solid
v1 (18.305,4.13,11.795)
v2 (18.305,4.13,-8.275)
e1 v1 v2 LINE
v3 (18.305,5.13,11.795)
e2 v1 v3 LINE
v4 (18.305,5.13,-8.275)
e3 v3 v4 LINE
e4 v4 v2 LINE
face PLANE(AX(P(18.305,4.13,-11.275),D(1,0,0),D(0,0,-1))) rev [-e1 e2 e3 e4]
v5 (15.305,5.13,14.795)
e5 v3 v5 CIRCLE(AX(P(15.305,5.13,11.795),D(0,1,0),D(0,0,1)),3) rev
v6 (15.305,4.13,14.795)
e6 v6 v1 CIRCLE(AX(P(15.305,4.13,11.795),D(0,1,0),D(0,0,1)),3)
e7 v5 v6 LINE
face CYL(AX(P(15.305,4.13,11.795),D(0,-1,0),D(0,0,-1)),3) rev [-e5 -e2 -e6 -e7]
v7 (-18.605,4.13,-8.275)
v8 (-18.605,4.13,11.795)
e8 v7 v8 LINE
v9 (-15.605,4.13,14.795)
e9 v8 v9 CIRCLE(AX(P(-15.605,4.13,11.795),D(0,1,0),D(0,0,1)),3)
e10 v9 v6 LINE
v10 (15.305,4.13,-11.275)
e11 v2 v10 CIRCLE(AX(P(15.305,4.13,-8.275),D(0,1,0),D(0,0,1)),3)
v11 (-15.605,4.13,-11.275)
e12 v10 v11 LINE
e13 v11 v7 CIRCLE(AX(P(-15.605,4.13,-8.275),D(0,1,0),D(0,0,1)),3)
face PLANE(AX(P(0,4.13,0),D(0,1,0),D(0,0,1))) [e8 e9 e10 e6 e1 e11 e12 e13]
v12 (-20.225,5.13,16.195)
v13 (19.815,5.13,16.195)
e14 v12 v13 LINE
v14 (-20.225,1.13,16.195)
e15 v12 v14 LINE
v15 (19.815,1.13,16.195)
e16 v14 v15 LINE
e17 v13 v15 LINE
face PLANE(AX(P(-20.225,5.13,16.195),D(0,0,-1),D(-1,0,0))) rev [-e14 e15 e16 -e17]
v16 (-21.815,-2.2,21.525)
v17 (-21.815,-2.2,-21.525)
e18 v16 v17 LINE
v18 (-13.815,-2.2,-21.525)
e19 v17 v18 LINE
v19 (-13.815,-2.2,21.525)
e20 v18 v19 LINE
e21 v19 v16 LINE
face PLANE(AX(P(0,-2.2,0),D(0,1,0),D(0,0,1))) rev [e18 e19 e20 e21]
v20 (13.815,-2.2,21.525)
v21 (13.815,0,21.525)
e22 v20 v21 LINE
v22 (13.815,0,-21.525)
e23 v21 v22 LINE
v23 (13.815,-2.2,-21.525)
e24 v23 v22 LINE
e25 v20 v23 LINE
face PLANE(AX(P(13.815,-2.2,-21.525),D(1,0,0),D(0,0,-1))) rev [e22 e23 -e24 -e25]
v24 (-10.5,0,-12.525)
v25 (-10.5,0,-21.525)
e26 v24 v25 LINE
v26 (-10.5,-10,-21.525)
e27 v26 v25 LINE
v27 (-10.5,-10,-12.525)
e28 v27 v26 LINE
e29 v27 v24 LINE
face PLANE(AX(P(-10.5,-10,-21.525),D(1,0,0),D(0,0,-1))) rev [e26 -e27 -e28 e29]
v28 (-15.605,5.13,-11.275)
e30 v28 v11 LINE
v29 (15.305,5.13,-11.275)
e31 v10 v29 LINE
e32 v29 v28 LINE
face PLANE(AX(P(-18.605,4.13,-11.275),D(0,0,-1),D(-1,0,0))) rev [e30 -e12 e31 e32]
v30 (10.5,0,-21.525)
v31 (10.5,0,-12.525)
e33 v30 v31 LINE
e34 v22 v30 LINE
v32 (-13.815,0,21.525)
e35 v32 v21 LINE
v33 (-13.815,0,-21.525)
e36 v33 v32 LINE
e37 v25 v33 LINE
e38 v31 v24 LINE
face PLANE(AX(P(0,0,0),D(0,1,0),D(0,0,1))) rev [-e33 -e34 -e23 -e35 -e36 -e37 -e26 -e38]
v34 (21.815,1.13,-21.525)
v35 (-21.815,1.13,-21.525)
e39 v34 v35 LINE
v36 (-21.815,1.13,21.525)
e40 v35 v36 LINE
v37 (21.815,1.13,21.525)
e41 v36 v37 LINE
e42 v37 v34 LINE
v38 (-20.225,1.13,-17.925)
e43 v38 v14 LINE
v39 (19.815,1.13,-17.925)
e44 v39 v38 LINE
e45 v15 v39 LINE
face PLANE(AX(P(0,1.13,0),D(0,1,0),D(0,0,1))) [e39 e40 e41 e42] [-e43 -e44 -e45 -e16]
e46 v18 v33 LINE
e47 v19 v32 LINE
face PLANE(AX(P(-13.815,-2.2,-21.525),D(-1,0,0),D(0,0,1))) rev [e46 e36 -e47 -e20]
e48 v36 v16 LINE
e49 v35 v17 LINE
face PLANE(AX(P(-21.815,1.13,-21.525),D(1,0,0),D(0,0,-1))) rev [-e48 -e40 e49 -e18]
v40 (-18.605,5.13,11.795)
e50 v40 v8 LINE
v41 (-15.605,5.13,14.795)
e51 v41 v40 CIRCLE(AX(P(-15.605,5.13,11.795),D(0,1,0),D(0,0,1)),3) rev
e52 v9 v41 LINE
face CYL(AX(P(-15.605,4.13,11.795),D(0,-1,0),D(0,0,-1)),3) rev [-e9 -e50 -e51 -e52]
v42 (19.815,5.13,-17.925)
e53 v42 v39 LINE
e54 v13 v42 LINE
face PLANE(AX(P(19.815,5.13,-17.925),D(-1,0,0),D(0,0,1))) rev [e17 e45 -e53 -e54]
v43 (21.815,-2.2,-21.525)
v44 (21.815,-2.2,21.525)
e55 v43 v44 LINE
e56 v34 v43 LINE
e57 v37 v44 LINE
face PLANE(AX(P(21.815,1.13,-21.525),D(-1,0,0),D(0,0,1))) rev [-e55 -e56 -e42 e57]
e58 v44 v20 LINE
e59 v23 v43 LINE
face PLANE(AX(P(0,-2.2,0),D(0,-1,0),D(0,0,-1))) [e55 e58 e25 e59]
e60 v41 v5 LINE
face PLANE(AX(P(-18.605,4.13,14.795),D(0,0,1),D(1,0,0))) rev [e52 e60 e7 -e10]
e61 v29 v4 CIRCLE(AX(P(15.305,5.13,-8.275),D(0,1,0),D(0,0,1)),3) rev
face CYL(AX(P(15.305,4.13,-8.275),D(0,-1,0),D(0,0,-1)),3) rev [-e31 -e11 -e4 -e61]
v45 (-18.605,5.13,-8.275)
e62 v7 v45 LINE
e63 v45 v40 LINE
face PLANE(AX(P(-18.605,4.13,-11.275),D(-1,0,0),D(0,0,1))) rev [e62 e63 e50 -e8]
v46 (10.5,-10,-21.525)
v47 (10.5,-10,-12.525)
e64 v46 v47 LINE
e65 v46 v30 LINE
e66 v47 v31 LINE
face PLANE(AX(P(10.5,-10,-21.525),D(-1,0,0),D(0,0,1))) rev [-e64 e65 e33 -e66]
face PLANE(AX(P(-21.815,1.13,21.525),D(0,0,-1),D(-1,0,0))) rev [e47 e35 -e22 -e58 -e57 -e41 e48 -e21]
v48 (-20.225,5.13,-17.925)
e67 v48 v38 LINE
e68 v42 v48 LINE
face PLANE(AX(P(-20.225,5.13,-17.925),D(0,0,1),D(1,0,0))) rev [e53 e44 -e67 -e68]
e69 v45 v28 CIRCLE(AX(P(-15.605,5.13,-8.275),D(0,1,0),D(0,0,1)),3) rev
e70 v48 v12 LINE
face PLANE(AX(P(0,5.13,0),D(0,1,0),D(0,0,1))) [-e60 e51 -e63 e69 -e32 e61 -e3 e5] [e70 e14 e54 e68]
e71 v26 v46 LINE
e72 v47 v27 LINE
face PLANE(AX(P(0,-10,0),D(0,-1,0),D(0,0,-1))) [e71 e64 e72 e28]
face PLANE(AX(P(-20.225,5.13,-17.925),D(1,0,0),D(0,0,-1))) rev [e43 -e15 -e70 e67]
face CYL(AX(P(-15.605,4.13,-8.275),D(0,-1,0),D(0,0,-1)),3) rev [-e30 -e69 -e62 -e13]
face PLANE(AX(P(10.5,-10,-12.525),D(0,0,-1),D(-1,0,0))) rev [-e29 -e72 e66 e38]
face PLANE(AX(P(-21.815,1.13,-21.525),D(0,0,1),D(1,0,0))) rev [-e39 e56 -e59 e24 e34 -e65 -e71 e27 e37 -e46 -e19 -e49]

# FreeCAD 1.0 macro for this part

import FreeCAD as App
import Part
import Sketcher

V = App.Vector
Q = App.Units.Quantity


def edges_at(feature, points):
    """Names of the edges that pass closest to the given points."""
    edges = feature.Shape.Edges
    near = lambda p: min(range(len(edges)), key=lambda i: edges[i].distToShape(Part.Vertex(*p))[0])
    return sorted({f"Edge{near(p) + 1}" for p in points})


def add_polygon(sketch, points):
    """Adds a closed chain of lines whose ends are joined by coincident constraints."""
    first, n = sketch.GeometryCount, len(points)
    for a, b in zip(points, points[1:] + points[:1]):
        sketch.addGeometry(Part.LineSegment(App.Vector(*a, 0), App.Vector(*b, 0)), False)
    for i in range(n):
        sketch.addConstraint(Sketcher.Constraint("Coincident", first + i, 2, first + (i + 1) % n, 1))

doc = App.newDocument("Part")
body = doc.addObject("PartDesign::Body", "Body")

sketch1 = body.newObject("Sketcher::SketchObject", "Sketch")
sketch1.AttachmentSupport = (doc.getObject("XZ_Plane"), [""])
sketch1.MapMode = "FlatFace"
add_polygon(sketch1, [(-22, -22), (-22, 22), (22, 22), (22, -22)])
sketch1.addConstraint(Sketcher.Constraint("Vertical", 0))
sketch1.addConstraint(Sketcher.Constraint("Horizontal", 1))
sketch1.addConstraint(Sketcher.Constraint("Vertical", 2))
sketch1.addConstraint(Sketcher.Constraint("Horizontal", 3))
sketch1.addConstraint(Sketcher.Constraint("Symmetric", 0, 2, 2, 2, -1, 1))
sketch1.addConstraint(Sketcher.Constraint("DistanceX", 1, 1, 1, 2, Q("43.63 mm")))
sketch1.addConstraint(Sketcher.Constraint("DistanceY", 0, 1, 0, 2, Q("43.05 mm")))
pad1 = body.newObject("PartDesign::Pad", "Pad")
pad1.Profile = sketch1
pad1.Length = 1.13
pad1.Reversed = True

sketch2 = body.newObject("Sketcher::SketchObject", "Sketch001")
sketch2.AttachmentSupport = (doc.getObject("XZ_Plane"), [""])
sketch2.MapMode = "FlatFace"
sketch2.AttachmentOffset = App.Placement(V(0, 0, -1.13), App.Rotation())
add_polygon(sketch2, [(-20, -18), (-20, 16), (20, 16), (20, -18)])
sketch2.addConstraint(Sketcher.Constraint("Vertical", 0))
sketch2.addConstraint(Sketcher.Constraint("Horizontal", 1))
sketch2.addConstraint(Sketcher.Constraint("Vertical", 2))
sketch2.addConstraint(Sketcher.Constraint("Horizontal", 3))
sketch2.addConstraint(Sketcher.Constraint("DistanceX", 1, 1, 1, 2, Q("40.04 mm")))
sketch2.addConstraint(Sketcher.Constraint("DistanceY", 0, 1, 0, 2, Q("34.12 mm")))
sketch2.addConstraint(Sketcher.Constraint("DistanceX", 0, 2, -1, 1, Q("20.225 mm")))
sketch2.addConstraint(Sketcher.Constraint("DistanceY", -1, 1, 0, 2, Q("16.195 mm")))
pad2 = body.newObject("PartDesign::Pad", "Pad001")
pad2.Profile = sketch2
pad2.Length = 4
pad2.Reversed = True

sketch3 = body.newObject("Sketcher::SketchObject", "Sketch002")
sketch3.AttachmentSupport = (doc.getObject("XZ_Plane"), [""])
sketch3.MapMode = "FlatFace"
sketch3.AttachmentOffset = App.Placement(V(0, 0, -5.13), App.Rotation())
add_polygon(sketch3, [(-19, -11), (-19, 15), (18, 15), (18, -11)])
sketch3.addConstraint(Sketcher.Constraint("Vertical", 0))
sketch3.addConstraint(Sketcher.Constraint("Horizontal", 1))
sketch3.addConstraint(Sketcher.Constraint("Vertical", 2))
sketch3.addConstraint(Sketcher.Constraint("Horizontal", 3))
sketch3.addConstraint(Sketcher.Constraint("DistanceX", 1, 1, 1, 2, Q("36.91 mm")))
sketch3.addConstraint(Sketcher.Constraint("DistanceY", 0, 1, 0, 2, Q("26.07 mm")))
sketch3.addConstraint(Sketcher.Constraint("DistanceX", 0, 2, -1, 1, Q("18.605 mm")))
sketch3.addConstraint(Sketcher.Constraint("DistanceY", -1, 1, 0, 2, Q("14.795 mm")))
pocket1 = body.newObject("PartDesign::Pocket", "Pocket")
pocket1.Profile = sketch3
pocket1.Length = 1
pocket1.Reversed = True
doc.recompute()

fillet = body.newObject("PartDesign::Fillet", "Fillet")
fillet.Base = (pocket1, edges_at(pocket1, [
    (-18.605, 4.63, 14.795),
    (-18.605, 4.63, -11.275),
    (18.305, 4.63, -11.275),
    (18.305, 4.63, 14.795),
]))
fillet.Radius = 3

sketch4 = body.newObject("Sketcher::SketchObject", "Sketch003")
sketch4.AttachmentSupport = (doc.getObject("XZ_Plane"), [""])
sketch4.MapMode = "FlatFace"
add_polygon(sketch4, [(-10, -13), (-10, -22), (10, -22), (10, -13)])
sketch4.addConstraint(Sketcher.Constraint("Vertical", 0))
sketch4.addConstraint(Sketcher.Constraint("Horizontal", 1))
sketch4.addConstraint(Sketcher.Constraint("Vertical", 2))
sketch4.addConstraint(Sketcher.Constraint("Horizontal", 3))
sketch4.addConstraint(Sketcher.Constraint("DistanceX", 1, 1, 1, 2, Q("21 mm")))
sketch4.addConstraint(Sketcher.Constraint("DistanceY", 0, 2, 0, 1, Q("9 mm")))
sketch4.addConstraint(Sketcher.Constraint("DistanceX", 0, 2, -1, 1, Q("10.5 mm")))
sketch4.addConstraint(Sketcher.Constraint("DistanceY", 0, 2, -1, 1, Q("21.525 mm")))
pad3 = body.newObject("PartDesign::Pad", "Pad002")
pad3.Profile = sketch4
pad3.Length = 10

sketch5 = body.newObject("Sketcher::SketchObject", "Sketch004")
sketch5.AttachmentSupport = (doc.getObject("XZ_Plane"), [""])
sketch5.MapMode = "FlatFace"
add_polygon(sketch5, [(14, 22), (14, -22), (22, -22), (22, 22)])
add_polygon(sketch5, [(-22, 22), (-22, -22), (-14, -22), (-14, 22)])
sketch5.addConstraint(Sketcher.Constraint("Vertical", 0))
sketch5.addConstraint(Sketcher.Constraint("Horizontal", 1))
sketch5.addConstraint(Sketcher.Constraint("Vertical", 2))
sketch5.addConstraint(Sketcher.Constraint("Horizontal", 3))
sketch5.addConstraint(Sketcher.Constraint("Vertical", 4))
sketch5.addConstraint(Sketcher.Constraint("Horizontal", 5))
sketch5.addConstraint(Sketcher.Constraint("Vertical", 6))
sketch5.addConstraint(Sketcher.Constraint("Horizontal", 7))
sketch5.addConstraint(Sketcher.Constraint("Symmetric", 2, 2, 4, 2, -1, 1))
sketch5.addConstraint(Sketcher.Constraint("Symmetric", 0, 2, 6, 2, -1, 1))
sketch5.addConstraint(Sketcher.Constraint("Horizontal", 1, 2, 4, 2))
sketch5.addConstraint(Sketcher.Constraint("DistanceX", 1, 1, 1, 2, Q("8 mm")))
sketch5.addConstraint(Sketcher.Constraint("DistanceY", 0, 2, 0, 1, Q("43.05 mm")))
sketch5.addConstraint(Sketcher.Constraint("DistanceX", 4, 2, 0, 2, Q("35.63 mm")))
pad4 = body.newObject("PartDesign::Pad", "Pad003")
pad4.Profile = sketch5
pad4.Length = 2.2

doc.recompute()
